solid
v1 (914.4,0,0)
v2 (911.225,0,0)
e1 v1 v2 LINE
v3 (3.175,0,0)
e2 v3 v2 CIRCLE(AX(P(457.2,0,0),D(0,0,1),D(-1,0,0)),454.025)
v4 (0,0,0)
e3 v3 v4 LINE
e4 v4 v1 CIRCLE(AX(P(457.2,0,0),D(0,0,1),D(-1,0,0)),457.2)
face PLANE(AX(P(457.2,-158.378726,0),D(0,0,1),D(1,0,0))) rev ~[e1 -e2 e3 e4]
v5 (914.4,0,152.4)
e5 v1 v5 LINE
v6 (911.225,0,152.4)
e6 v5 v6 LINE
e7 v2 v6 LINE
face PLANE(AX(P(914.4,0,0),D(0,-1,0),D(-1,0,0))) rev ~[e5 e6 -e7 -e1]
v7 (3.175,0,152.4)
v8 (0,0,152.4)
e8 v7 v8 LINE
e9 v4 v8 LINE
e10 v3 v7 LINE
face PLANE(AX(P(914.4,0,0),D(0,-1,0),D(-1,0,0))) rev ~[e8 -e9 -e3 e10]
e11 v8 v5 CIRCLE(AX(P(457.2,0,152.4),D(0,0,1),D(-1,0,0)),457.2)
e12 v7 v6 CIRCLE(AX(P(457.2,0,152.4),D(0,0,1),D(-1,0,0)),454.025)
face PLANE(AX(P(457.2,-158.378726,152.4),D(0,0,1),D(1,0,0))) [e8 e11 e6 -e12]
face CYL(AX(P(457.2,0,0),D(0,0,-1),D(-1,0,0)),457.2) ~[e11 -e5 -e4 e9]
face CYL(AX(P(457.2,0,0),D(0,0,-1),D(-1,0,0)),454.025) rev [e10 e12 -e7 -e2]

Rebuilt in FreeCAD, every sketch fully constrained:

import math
import FreeCAD as App
import Part
import Sketcher

V = App.Vector
Q = App.Units.Quantity


def faces_at(feature, points):
    """Names of the faces that lie closest to the given points."""
    faces = feature.Shape.Faces
    near = lambda p: min(range(len(faces)), key=lambda i: faces[i].distToShape(Part.Vertex(*p))[0])
    return sorted({f"Face{near(p) + 1}" for p in points})

doc = App.newDocument("Part")
body = doc.addObject("PartDesign::Body", "Body")

# Sketch on XY plane
sketch1 = body.newObject("Sketcher::SketchObject", "Sketch")
sketch1.AttachmentSupport = (doc.getObject("XY_Plane"), [""])
sketch1.MapMode = "FlatFace"
sketch1.addGeometry([
    Part.LineSegment(V(914.4, 0, 0), V(0, 0, 0)),
    Part.ArcOfCircle(Part.Circle(V(457.2, 0, 0), V(0, 0, 1), 457.2), math.radians(180), math.radians(360)),
], False)
sketch1.addConstraint([
    Sketcher.Constraint("Coincident", 0, 1, 1, 2),
    Sketcher.Constraint("Coincident", 1, 1, 0, 2),
    Sketcher.Constraint("Horizontal", 0),
    Sketcher.Constraint("PointOnObject", 1, 3, -1),
    Sketcher.Constraint("PointOnObject", 0, 1, -1),
    Sketcher.Constraint("Radius", 1, Q("18 in")),
    Sketcher.Constraint("DistanceX", -1, 1, 1, 3, Q("18 in")),
])
pad1 = body.newObject("PartDesign::Pad", "Pad")
pad1.Profile = sketch1
pad1.Length = Q("6 in")
doc.recompute()

thickness = body.newObject("PartDesign::Thickness", "Thickness")
thickness.Base = (pad1, faces_at(pad1, [(457.2, -228.6, 152.4), (457.2, 0, 76.2), (457.2, -228.6, 0)]))
thickness.Value = Q("0.125 in")
thickness.Reversed = True
thickness.Join = "Arc"

doc.recompute()
